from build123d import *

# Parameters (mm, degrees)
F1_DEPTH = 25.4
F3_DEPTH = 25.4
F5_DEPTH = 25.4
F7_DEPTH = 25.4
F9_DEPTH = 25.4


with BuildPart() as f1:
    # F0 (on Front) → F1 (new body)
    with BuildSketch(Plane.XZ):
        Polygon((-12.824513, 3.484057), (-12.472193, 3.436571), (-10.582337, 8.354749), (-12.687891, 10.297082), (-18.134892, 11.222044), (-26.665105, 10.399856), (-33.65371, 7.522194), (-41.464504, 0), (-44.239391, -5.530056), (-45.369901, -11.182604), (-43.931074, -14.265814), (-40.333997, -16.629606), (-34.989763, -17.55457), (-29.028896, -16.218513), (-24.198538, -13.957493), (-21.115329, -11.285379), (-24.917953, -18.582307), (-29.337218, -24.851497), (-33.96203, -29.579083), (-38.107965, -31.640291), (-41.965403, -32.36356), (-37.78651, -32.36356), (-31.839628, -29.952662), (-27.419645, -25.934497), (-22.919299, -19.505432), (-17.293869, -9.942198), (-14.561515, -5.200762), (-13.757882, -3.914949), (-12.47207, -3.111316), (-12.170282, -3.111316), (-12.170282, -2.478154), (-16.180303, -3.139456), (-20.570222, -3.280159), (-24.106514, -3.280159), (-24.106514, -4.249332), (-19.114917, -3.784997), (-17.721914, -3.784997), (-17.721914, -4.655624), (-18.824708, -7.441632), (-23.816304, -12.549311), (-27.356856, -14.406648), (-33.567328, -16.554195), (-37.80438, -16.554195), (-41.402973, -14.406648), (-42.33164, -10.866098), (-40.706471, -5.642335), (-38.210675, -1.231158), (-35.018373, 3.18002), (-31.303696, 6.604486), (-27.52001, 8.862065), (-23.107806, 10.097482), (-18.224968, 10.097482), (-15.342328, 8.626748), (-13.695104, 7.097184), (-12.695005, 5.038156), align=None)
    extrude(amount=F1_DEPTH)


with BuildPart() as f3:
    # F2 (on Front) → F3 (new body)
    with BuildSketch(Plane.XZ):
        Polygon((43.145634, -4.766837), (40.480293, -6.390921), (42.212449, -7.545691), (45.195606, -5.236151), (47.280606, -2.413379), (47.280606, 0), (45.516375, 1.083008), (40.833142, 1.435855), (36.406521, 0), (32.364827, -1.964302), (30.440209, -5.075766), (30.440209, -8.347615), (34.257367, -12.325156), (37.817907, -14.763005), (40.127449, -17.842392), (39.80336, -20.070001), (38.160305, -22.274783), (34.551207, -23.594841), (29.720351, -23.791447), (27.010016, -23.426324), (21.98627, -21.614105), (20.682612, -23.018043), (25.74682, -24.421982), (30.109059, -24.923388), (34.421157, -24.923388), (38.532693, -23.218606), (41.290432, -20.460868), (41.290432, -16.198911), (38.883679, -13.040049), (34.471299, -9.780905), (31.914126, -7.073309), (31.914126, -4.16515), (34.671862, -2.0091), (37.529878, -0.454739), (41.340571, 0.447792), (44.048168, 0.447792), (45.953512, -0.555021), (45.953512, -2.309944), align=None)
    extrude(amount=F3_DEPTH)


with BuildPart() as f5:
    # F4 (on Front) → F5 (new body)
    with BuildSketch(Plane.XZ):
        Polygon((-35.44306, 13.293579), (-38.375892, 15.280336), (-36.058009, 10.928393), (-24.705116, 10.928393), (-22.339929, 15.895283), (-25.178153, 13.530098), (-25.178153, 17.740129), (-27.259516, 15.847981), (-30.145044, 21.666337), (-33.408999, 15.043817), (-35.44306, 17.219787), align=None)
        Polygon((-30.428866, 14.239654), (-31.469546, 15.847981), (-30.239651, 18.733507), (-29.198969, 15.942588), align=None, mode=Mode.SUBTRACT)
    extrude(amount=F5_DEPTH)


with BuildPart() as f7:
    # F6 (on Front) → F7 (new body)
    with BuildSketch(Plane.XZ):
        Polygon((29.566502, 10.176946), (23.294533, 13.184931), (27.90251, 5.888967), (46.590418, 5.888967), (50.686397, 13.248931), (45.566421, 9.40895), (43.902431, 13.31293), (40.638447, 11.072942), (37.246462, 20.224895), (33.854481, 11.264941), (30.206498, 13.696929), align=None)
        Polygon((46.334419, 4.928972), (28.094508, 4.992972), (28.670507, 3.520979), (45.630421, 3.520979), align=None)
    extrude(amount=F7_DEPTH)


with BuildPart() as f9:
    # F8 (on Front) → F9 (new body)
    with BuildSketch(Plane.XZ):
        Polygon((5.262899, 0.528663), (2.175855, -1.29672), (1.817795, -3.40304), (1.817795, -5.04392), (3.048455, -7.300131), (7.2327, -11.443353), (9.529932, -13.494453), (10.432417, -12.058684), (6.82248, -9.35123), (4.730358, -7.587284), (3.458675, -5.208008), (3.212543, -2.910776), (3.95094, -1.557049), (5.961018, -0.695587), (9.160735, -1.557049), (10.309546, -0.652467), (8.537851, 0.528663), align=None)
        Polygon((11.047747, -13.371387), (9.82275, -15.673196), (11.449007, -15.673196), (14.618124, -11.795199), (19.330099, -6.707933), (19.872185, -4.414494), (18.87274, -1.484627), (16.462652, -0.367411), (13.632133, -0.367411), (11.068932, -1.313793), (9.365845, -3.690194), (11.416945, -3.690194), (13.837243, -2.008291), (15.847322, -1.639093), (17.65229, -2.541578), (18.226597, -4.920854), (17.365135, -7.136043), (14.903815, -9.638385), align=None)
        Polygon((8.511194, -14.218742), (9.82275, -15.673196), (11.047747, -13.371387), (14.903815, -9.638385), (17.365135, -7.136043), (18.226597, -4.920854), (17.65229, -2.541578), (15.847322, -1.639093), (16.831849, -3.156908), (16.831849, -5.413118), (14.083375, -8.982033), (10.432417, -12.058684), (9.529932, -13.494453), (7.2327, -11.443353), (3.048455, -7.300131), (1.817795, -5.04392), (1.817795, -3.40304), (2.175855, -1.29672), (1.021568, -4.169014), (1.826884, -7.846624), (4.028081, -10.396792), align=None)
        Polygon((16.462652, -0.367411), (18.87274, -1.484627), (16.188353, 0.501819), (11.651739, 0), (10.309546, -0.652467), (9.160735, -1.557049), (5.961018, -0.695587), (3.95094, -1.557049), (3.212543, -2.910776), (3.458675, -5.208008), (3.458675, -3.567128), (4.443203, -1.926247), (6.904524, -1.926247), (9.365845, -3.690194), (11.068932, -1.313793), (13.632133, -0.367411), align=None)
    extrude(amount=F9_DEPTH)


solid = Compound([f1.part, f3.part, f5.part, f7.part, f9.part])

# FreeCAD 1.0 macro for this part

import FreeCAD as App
import Part
import Sketcher
from FreeCAD import Vector
Q = App.Units.Quantity


def add_polygon(sketch, points):
    """Adds a closed chain of lines whose ends are joined by coincident constraints."""
    first, n = sketch.GeometryCount, len(points)
    for a, b in zip(points, points[1:] + points[:1]):
        sketch.addGeometry(Part.LineSegment(App.Vector(*a, 0), App.Vector(*b, 0)), False)
    for i in range(n):
        sketch.addConstraint(Sketcher.Constraint("Coincident", first + i, 2, first + (i + 1) % n, 1))

doc = App.newDocument("Part")
params = doc.addObject("Spreadsheet::Sheet", "Params")
for row, (alias, value) in enumerate([
    ("pad1_length", "1 in"),
    ("pad2_length", "1 in"),
    ("pad3_length", "1 in"),
    ("pad4_length", "1 in"),
    ("pad5_length", "1 in"),
], start=1):
    params.set(f"A{row}", alias)
    params.set(f"B{row}", "=" + value)
    params.setAlias(f"B{row}", alias)

body = doc.addObject("PartDesign::Body", "Body")

# Sketch on XZ plane
sketch1 = body.newObject("Sketcher::SketchObject", "Sketch")
sketch1.AttachmentSupport = (doc.getObject("XZ_Plane"), [""])
sketch1.MapMode = "FlatFace"
add_polygon(sketch1, [(-12.82, 3.48), (-12.47, 3.44), (-10.58, 8.35), (-12.69, 10.3), (-18.13, 11.22), (-26.67, 10.4), (-33.65, 7.52), (-41.46, 0), (-44.24, -5.53), (-45.37, -11.18), (-43.93, -14.27), (-40.33, -16.63), (-34.99, -17.55), (-29.03, -16.22), (-24.2, -13.96), (-21.12, -11.29), (-24.92, -18.58), (-29.34, -24.85), (-33.96, -29.58), (-38.11, -31.64), (-41.97, -32.36), (-37.79, -32.36), (-31.84, -29.95), (-27.42, -25.93), (-22.92, -19.51), (-17.29, -9.94), (-14.56, -5.2), (-13.76, -3.91), (-12.47, -3.11), (-12.17, -3.11), (-12.17, -2.48), (-16.18, -3.14), (-20.57, -3.28), (-24.11, -3.28), (-24.11, -4.25), (-19.11, -3.78), (-17.72, -3.78), (-17.72, -4.66), (-18.82, -7.44), (-23.82, -12.55), (-27.36, -14.41), (-33.57, -16.55), (-37.8, -16.55), (-41.4, -14.41), (-42.33, -10.87), (-40.71, -5.64), (-38.21, -1.23), (-35.02, 3.18), (-31.3, 6.6), (-27.52, 8.86), (-23.11, 10.1), (-18.22, 10.1), (-15.34, 8.63), (-13.7, 7.1), (-12.7, 5.04)])  # lines 0-54
sketch1.addConstraint([
    Sketcher.Constraint("Horizontal", 20),
    Sketcher.Constraint("Horizontal", 28),
    Sketcher.Constraint("Vertical", 29),
    Sketcher.Constraint("Horizontal", 32),
    Sketcher.Constraint("Vertical", 33),
    Sketcher.Constraint("Horizontal", 35),
    Sketcher.Constraint("Vertical", 36),
    Sketcher.Constraint("Horizontal", 41),
    Sketcher.Constraint("Horizontal", 50),
    Sketcher.Constraint("PointOnObject", 6, 2, -1),
    Sketcher.Constraint("Horizontal", 39, 2, 42, 2),
    Sketcher.Constraint("Equal", 26, 27),
    Sketcher.Constraint("DistanceX", 43, 2, -1, 1, Q("1.6666 in")),
    Sketcher.Constraint("DistanceY", -1, 1, 48, 2, Q("0.3489002 in")),
    Sketcher.Constraint("DistanceX", 9, 2, 12, 2, Q("0.5866999 in")),
    Sketcher.Constraint("Distance", 49, 4.581899),
    Sketcher.Constraint("DistanceX", 28, 1, 28, 2, 0.301788),
    Sketcher.Constraint("DistanceX", 32, 2, 32, 1, 3.536292),
    Sketcher.Constraint("DistanceX", 41, 2, 41, 1, 4.237052),
    Sketcher.Constraint("DistanceX", 8, 2, -1, 1, 45.369901),
    Sketcher.Constraint("DistanceX", 23, 2, -1, 1, 22.919299),
    Sketcher.Constraint("DistanceX", 3, 2, 2, 2, 5.447001),
    Sketcher.Constraint("DistanceX", 3, 2, 0, 2, 5.662699),
    Sketcher.Constraint("DistanceX", 6, 2, 4, 2, 14.799399),
    Sketcher.Constraint("DistanceX", 7, 2, 3, 2, 26.104499),
    Sketcher.Constraint("DistanceY", 7, 2, 3, 2, 16.7521),
    Sketcher.Constraint("DistanceY", 8, 2, 5, 2, 18.704798),
    Sketcher.Constraint("DistanceY", 10, 2, 8, 2, 5.447002),
    Sketcher.Constraint("DistanceX", 10, 2, 12, 2, 11.305101),
    Sketcher.Constraint("DistanceY", 12, 2, 9, 2, 1.952699),
    Sketcher.Constraint("DistanceY", 15, 2, 10, 2, 1.952701),
    Sketcher.Constraint("DistanceX", 18, 2, 11, 2, 3.118202),
    Sketcher.Constraint("DistanceX", 17, 2, 21, 2, 2.122402),
    Sketcher.Constraint("DistanceY", 22, 2, 16, 2, 1.083),
    Sketcher.Constraint("DistanceX", 24, 2, 27, 2, 4.821799),
    Sketcher.Constraint("DistanceX", 26, 2, 28, 2, 1.5876),
    Sketcher.Constraint("DistanceX", 32, 2, 25, 2, 9.544999),
    Sketcher.Constraint("DistanceX", 34, 2, 25, 2, 4.553402),
    Sketcher.Constraint("DistanceX", 35, 2, 25, 2, 3.160399),
    Sketcher.Constraint("DistanceX", 9, 2, 42, 2, 2.528101),
    Sketcher.Constraint("DistanceY", 7, 2, 45, 2, 4.298898),
    Sketcher.Constraint("DistanceX", 44, 2, 46, 2, 5.688098),
    Sketcher.Constraint("DistanceX", 5, 2, 48, 2, 6.1337),
    Sketcher.Constraint("DistanceX", 4, 2, 49, 2, 3.557299),
    Sketcher.Constraint("DistanceY", 49, 2, 2, 2, 0.1996),
    Sketcher.Constraint("DistanceY", 1, 2, 51, 2, 0.271999),
    Sketcher.Constraint("DistanceX", 52, 2, 53, 2, 1.000099),
    Sketcher.Constraint("DistanceY", 54, 2, 53, 2, 1.554099),
    Sketcher.Constraint("Distance", 1, 5.268779),
    Sketcher.Constraint("Distance", 5, 7.557879),
    Sketcher.Constraint("Distance", 6, 10.84398),
    Sketcher.Constraint("Distance", 8, 5.764491),
    Sketcher.Constraint("Distance", 9, 3.402412),
    Sketcher.Constraint("Distance", 10, 4.304239),
    Sketcher.Constraint("Distance", 11, 5.423688),
    Sketcher.Constraint("Distance", 15, 8.228311),
    Sketcher.Constraint("Distance", 18, 4.630049),
    Sketcher.Constraint("Distance", 19, 3.924659),
    Sketcher.Constraint("Distance", 26, 1.516292),
    Sketcher.Constraint("Distance", 37, 2.99633),
    Sketcher.Constraint("Distance", 39, 3.998151),
    Sketcher.Constraint("Distance", 44, 5.470729),
    Sketcher.Constraint("Distance", 45, 5.068282),
    Sketcher.Constraint("Distance", 51, 3.236151),
    Sketcher.Constraint("Distance", 52, 2.247869),
    Sketcher.Constraint("Distance", 53, 2.28906),
    Sketcher.Constraint("DistanceX", 20, 1, 20, 2, 4.178893),
    Sketcher.Constraint("DistanceX", 50, 1, 50, 2, 4.882838),
    Sketcher.Constraint("DistanceY", 29, 1, 29, 2, 0.633162),
    Sketcher.Constraint("DistanceY", 33, 2, 33, 1, 0.969173),
    Sketcher.Constraint("DistanceY", 36, 2, 36, 1, 0.870627),
    Sketcher.Constraint("DistanceY", -1, 1, 0, 2, 3.436571),
    Sketcher.Constraint("DistanceY", -1, 1, 1, 2, 8.354749),
    Sketcher.Constraint("DistanceX", 2, 2, -1, 1, 12.687891),
    Sketcher.Constraint("DistanceX", 5, 2, -1, 1, 33.65371),
    Sketcher.Constraint("DistanceY", 11, 2, -1, 1, 17.55457),
    Sketcher.Constraint("DistanceX", 14, 2, -1, 1, 21.115329),
    Sketcher.Constraint("DistanceY", 14, 2, -1, 1, 11.285379),
    Sketcher.Constraint("DistanceX", 16, 2, -1, 1, 29.337218),
    Sketcher.Constraint("DistanceX", 17, 2, -1, 1, 33.96203),
    Sketcher.Constraint("DistanceY", 18, 2, -1, 1, 31.640291),
    Sketcher.Constraint("DistanceY", 19, 2, -1, 1, 32.36356),
    Sketcher.Constraint("DistanceX", 20, 2, -1, 1, 37.78651),
    Sketcher.Constraint("DistanceY", 21, 2, -1, 1, 29.952662),
    Sketcher.Constraint("DistanceY", 23, 2, -1, 1, 19.505432),
    Sketcher.Constraint("DistanceX", 24, 2, -1, 1, 17.293869),
    Sketcher.Constraint("DistanceY", 26, 2, -1, 1, 3.914949),
    Sketcher.Constraint("DistanceY", 31, 2, -1, 1, 3.280159),
    Sketcher.Constraint("DistanceX", 37, 2, -1, 1, 18.824708),
    Sketcher.Constraint("DistanceY", 38, 2, -1, 1, 12.549311),
    Sketcher.Constraint("DistanceX", 40, 2, -1, 1, 33.567328),
    Sketcher.Constraint("DistanceX", 44, 2, -1, 1, 40.706471),
    Sketcher.Constraint("DistanceY", -1, 1, 46, 2, 3.18002),
    Sketcher.Constraint("DistanceX", 12, 2, 13, 2, 4.830358),
    Sketcher.Constraint("DistanceY", 12, 2, 13, 2, 2.26102),
    Sketcher.Constraint("DistanceY", 16, 2, 15, 2, 6.26919),
    Sketcher.Constraint("DistanceX", 22, 2, 15, 2, 2.501692),
    Sketcher.Constraint("DistanceY", 14, 2, 24, 2, 1.343181),
    Sketcher.Constraint("DistanceX", 25, 2, 0, 2, 2.089322),
    Sketcher.Constraint("DistanceX", 30, 2, 26, 2, 2.422421),
    Sketcher.Constraint("DistanceY", 30, 2, 27, 2, 0.02814),
    Sketcher.Constraint("DistanceY", 34, 2, 31, 2, 0.504838),
    Sketcher.Constraint("DistanceX", 15, 2, 38, 2, 1.101649),
    Sketcher.Constraint("DistanceX", 12, 2, 39, 2, 1.67204),
    Sketcher.Constraint("DistanceY", 40, 2, 12, 2, 0.335682),
    Sketcher.Constraint("DistanceY", 42, 2, 43, 2, 3.54055),
    Sketcher.Constraint("DistanceY", 47, 2, 5, 2, 0.917708),
    Sketcher.Constraint("DistanceX", 47, 2, 4, 2, 4.638591),
    Sketcher.Constraint("DistanceX", 52, 2, 0, 2, 1.222911),
    Sketcher.Constraint("DistanceX", 54, 2, 0, 2, 0.35232),
])
pad1 = body.newObject("PartDesign::Pad", "Pad")
pad1.Profile = sketch1
pad1.setExpression("Length", "Params.pad1_length")
body2 = doc.addObject("PartDesign::Body", "Body001")

# Sketch on XZ plane
sketch2 = body2.newObject("Sketcher::SketchObject", "Sketch001")
sketch2.AttachmentSupport = (doc.getObject("XZ_Plane001"), [""])
sketch2.MapMode = "FlatFace"
add_polygon(sketch2, [(43.1, -4.8), (40.5, -6.4), (42.2, -7.5), (45.2, -5.2), (47.3, -2.4), (47.3, 0), (45.5, 1.1), (40.8, 1.4), (36.4, 0), (32.4, -2), (30.4, -5.1), (30.4, -8.3), (34.3, -12.3), (37.8, -14.8), (40.1, -17.8), (39.8, -20.1), (38.2, -22.3), (34.6, -23.6), (29.7, -23.8), (27, -23.4), (22, -21.6), (20.7, -23), (25.7, -24.4), (30.1, -24.9), (34.4, -24.9), (38.5, -23.2), (41.3, -20.5), (41.3, -16.2), (38.9, -13), (34.5, -9.8), (31.9, -7.1), (31.9, -4.2), (34.7, -2), (37.5, -0.5), (41.3, 0.4), (44, 0.4), (46, -0.6), (46, -2.3)])  # lines 0-37
sketch2.addConstraint([
    Sketcher.Constraint("Vertical", 4),
    Sketcher.Constraint("Vertical", 10),
    Sketcher.Constraint("Horizontal", 23),
    Sketcher.Constraint("Vertical", 26),
    Sketcher.Constraint("Vertical", 30),
    Sketcher.Constraint("Horizontal", 34),
    Sketcher.Constraint("Vertical", 36),
    Sketcher.Constraint("PointOnObject", 4, 2, -1),
    Sketcher.Constraint("PointOnObject", 7, 2, -1),
    Sketcher.Constraint("Perpendicular", 3, 28),
    Sketcher.Constraint("Angle", 25, Q("44.99999 deg")),
    Sketcher.Constraint("Angle", 32, Q("28.540007 deg")),
    Sketcher.Constraint("DistanceX", 23, 1, 23, 2, 4.312098),
    Sketcher.Constraint("DistanceY", 33, 2, 6, 2, Q("0.0389001 in")),
    Sketcher.Constraint("Distance", 9, 3.658601),
    Sketcher.Constraint("DistanceY", 4, 1, 4, 2, 2.413379),
    Sketcher.Constraint("DistanceY", 10, 2, 10, 1, 3.271849),
    Sketcher.Constraint("DistanceY", 30, 1, 30, 2, 2.908159),
    Sketcher.Constraint("DistanceY", 14, 2, -1, 1, 20.070001),
    Sketcher.Constraint("DistanceX", -1, 1, 28, 2, 34.471299),
    Sketcher.Constraint("DistanceY", 31, 2, -1, 1, 2.0091),
    Sketcher.Constraint("DistanceX", 2, 2, 3, 2, 2.085),
    Sketcher.Constraint("DistanceY", 1, 2, 5, 2, 8.628699),
    Sketcher.Constraint("DistanceX", 12, 2, 2, 2, 7.377699),
    Sketcher.Constraint("DistanceX", 13, 2, 1, 2, 2.085),
    Sketcher.Constraint("DistanceY", 13, 2, 1, 2, 10.296701),
    Sketcher.Constraint("DistanceX", 12, 2, 15, 2, 0.342398),
    Sketcher.Constraint("DistanceX", 16, 2, 15, 2, 3.609098),
    Sketcher.Constraint("DistanceY", 16, 2, 20, 2, 0.576798),
    Sketcher.Constraint("DistanceY", 12, 2, 28, 2, 4.9821),
    Sketcher.Constraint("DistanceX", 29, 2, 8, 2, 0.450701),
    Sketcher.Constraint("DistanceY", 31, 2, 8, 2, 0.044798),
    Sketcher.Constraint("Distance", 0, 3.121168),
    Sketcher.Constraint("Distance", 2, 3.772691),
    Sketcher.Constraint("Distance", 3, 3.509311),
    Sketcher.Constraint("Distance", 7, 4.653671),
    Sketcher.Constraint("Distance", 8, 4.493748),
    Sketcher.Constraint("Distance", 11, 5.512851),
    Sketcher.Constraint("Distance", 14, 2.251061),
    Sketcher.Constraint("Distance", 15, 2.749672),
    Sketcher.Constraint("Distance", 18, 2.734818),
    Sketcher.Constraint("Distance", 21, 5.255211),
    Sketcher.Constraint("Distance", 22, 4.390961),
    Sketcher.Constraint("Distance", 25, 3.900031),
    Sketcher.Constraint("Distance", 32, 3.253351),
    Sketcher.Constraint("Distance", 35, 2.15313),
    Sketcher.Constraint("Distance", 37, 3.731019),
    Sketcher.Constraint("DistanceX", 34, 1, 34, 2, 2.707597),
    Sketcher.Constraint("DistanceY", 26, 1, 26, 2, 4.261957),
    Sketcher.Constraint("DistanceY", 36, 2, 36, 1, 1.754923),
    Sketcher.Constraint("DistanceY", 0, 2, -1, 1, 6.390921),
    Sketcher.Constraint("DistanceX", -1, 1, 1, 2, 42.212449),
    Sketcher.Constraint("DistanceY", 1, 2, -1, 1, 7.545691),
    Sketcher.Constraint("DistanceX", -1, 1, 7, 2, 36.406521),
    Sketcher.Constraint("DistanceX", -1, 1, 9, 2, 30.440209),
    Sketcher.Constraint("DistanceY", 16, 2, -1, 1, 23.594841),
    Sketcher.Constraint("DistanceX", -1, 1, 17, 2, 29.720351),
    Sketcher.Constraint("DistanceX", -1, 1, 19, 2, 21.98627),
    Sketcher.Constraint("DistanceX", -1, 1, 20, 2, 20.682612),
    Sketcher.Constraint("DistanceX", -1, 1, 21, 2, 25.74682),
    Sketcher.Constraint("DistanceX", -1, 1, 22, 2, 30.109059),
    Sketcher.Constraint("DistanceY", 25, 2, -1, 1, 20.460868),
    Sketcher.Constraint("DistanceX", -1, 1, 27, 2, 38.883679),
    Sketcher.Constraint("DistanceY", 27, 2, -1, 1, 13.040049),
    Sketcher.Constraint("DistanceY", 29, 2, -1, 1, 7.073309),
    Sketcher.Constraint("DistanceX", -1, 1, 31, 2, 34.671862),
    Sketcher.Constraint("DistanceX", -1, 1, 33, 2, 41.340571),
    Sketcher.Constraint("DistanceY", 35, 2, -1, 1, 0.555021),
    Sketcher.Constraint("DistanceX", 5, 2, 4, 2, 1.764231),
    Sketcher.Constraint("DistanceX", 0, 2, 5, 2, 5.036082),
    Sketcher.Constraint("DistanceX", 0, 2, 6, 2, 0.352849),
    Sketcher.Constraint("DistanceX", 10, 2, 11, 2, 3.817158),
    Sketcher.Constraint("DistanceX", 18, 2, 16, 2, 7.541191),
    Sketcher.Constraint("DistanceY", 18, 2, 15, 2, 1.151541),
    Sketcher.Constraint("DistanceY", 18, 2, 19, 2, 1.812219),
    Sketcher.Constraint("DistanceX", 15, 2, 24, 2, 0.372388),
])
pad2 = body2.newObject("PartDesign::Pad", "Pad001")
pad2.Profile = sketch2
pad2.setExpression("Length", "Params.pad2_length")
body3 = doc.addObject("PartDesign::Body", "Body002")

# Sketch on XZ plane
sketch3 = body3.newObject("Sketcher::SketchObject", "Sketch002")
sketch3.AttachmentSupport = (doc.getObject("XZ_Plane002"), [""])
sketch3.MapMode = "FlatFace"
add_polygon(sketch3, [(-35.4, 13.3), (-38.4, 15.3), (-36.1, 10.9), (-24.7, 10.9), (-22.3, 15.9), (-25.2, 13.5), (-25.2, 17.7), (-27.3, 15.8), (-30.1, 21.7), (-33.4, 15), (-35.4, 17.2)])  # lines 0-10
add_polygon(sketch3, [(-29.2, 15.9), (-30.4, 14.2), (-31.5, 15.8), (-30.2, 18.7)])  # lines 11-14
sketch3.addConstraint([
    Sketcher.Constraint("Horizontal", 2),
    Sketcher.Constraint("Vertical", 5),
    Sketcher.Constraint("Vertical", 10),
    Sketcher.Constraint("Horizontal", 6, 2, 12, 2),
    Sketcher.Constraint("Equal", 9, 14),
    Sketcher.Constraint("DistanceY", 5, 1, 5, 2, 4.210031),
    Sketcher.Constraint("DistanceY", 10, 2, 10, 1, 3.926208),
    Sketcher.Constraint("DistanceY", -1, 1, 4, 2, 13.530098),
    Sketcher.Constraint("DistanceX", 8, 2, -1, 1, 33.408999),
    Sketcher.Constraint("DistanceY", 6, 2, 3, 2, 0.047302),
    Sketcher.Constraint("DistanceX", 6, 2, 2, 2, 2.5544),
    Sketcher.Constraint("DistanceY", 0, 2, 7, 2, 6.386001),
    Sketcher.Constraint("Distance", 1, 4.930719),
    Sketcher.Constraint("Distance", 4, 3.694539),
    Sketcher.Constraint("Distance", 6, 2.81288),
    Sketcher.Constraint("Distance", 8, 7.383168),
    Sketcher.Constraint("Distance", 14, 2.978632),
    Sketcher.Constraint("DistanceX", 2, 1, 2, 2, 11.352893),
    Sketcher.Constraint("DistanceX", 1, 2, -1, 1, 36.058009),
    Sketcher.Constraint("DistanceX", 3, 2, -1, 1, 22.339929),
    Sketcher.Constraint("DistanceX", 9, 2, -1, 1, 35.44306),
    Sketcher.Constraint("DistanceY", -1, 1, 10, 2, 13.293579),
    Sketcher.Constraint("DistanceX", 13, 2, -1, 1, 30.239651),
    Sketcher.Constraint("DistanceX", 14, 2, -1, 1, 29.198969),
    Sketcher.Constraint("DistanceY", -1, 1, 14, 2, 15.942588),
    Sketcher.Constraint("DistanceY", 2, 2, 3, 2, 4.96689),
    Sketcher.Constraint("DistanceX", 0, 2, 4, 2, 13.197739),
    Sketcher.Constraint("DistanceX", 11, 2, 6, 2, 3.16935),
    Sketcher.Constraint("DistanceX", 12, 2, 11, 2, 1.04068),
    Sketcher.Constraint("Distance", 11, 2.100626),
])
pad3 = body3.newObject("PartDesign::Pad", "Pad002")
pad3.Profile = sketch3
pad3.setExpression("Length", "Params.pad3_length")
body4 = doc.addObject("PartDesign::Body", "Body003")
body4.AllowCompound = True

# Sketch on XZ plane
sketch4 = body4.newObject("Sketcher::SketchObject", "Sketch003")
sketch4.AttachmentSupport = (doc.getObject("XZ_Plane003"), [""])
sketch4.MapMode = "FlatFace"
add_polygon(sketch4, [(29.6, 10.2), (23.3, 13.2), (27.9, 5.9), (46.6, 5.9), (50.7, 13.2), (45.6, 9.4), (43.9, 13.3), (40.6, 11.1), (37.2, 20.2), (33.9, 11.3), (30.2, 13.7)])  # lines 0-10
add_polygon(sketch4, [(46.3, 4.9), (28.1, 5), (28.7, 3.5), (45.6, 3.5)])  # lines 11-14
sketch4.addConstraint([
    Sketcher.Constraint("Horizontal", 2),
    Sketcher.Constraint("Horizontal", 13),
    Sketcher.Constraint("DistanceY", 4, 2, 5, 2, Q("0.1537 in")),
    Sketcher.Constraint("DistanceY", 1, 2, 9, 2, Q("0.3074001 in")),
    Sketcher.Constraint("DistanceX", 2, 1, 2, 2, 18.687908),
    Sketcher.Constraint("DistanceX", -1, 1, 9, 2, 30.206498),
    Sketcher.Constraint("DistanceX", -1, 1, 10, 2, 29.566502),
    Sketcher.Constraint("DistanceY", 0, 2, 3, 2, 0.064),
    Sketcher.Constraint("DistanceY", 3, 2, 5, 2, 0.063999),
    Sketcher.Constraint("DistanceY", 6, 2, 8, 2, 0.191999),
    Sketcher.Constraint("DistanceY", 0, 2, 9, 2, 0.511998),
    Sketcher.Constraint("DistanceX", 1, 2, 11, 2, 0.191998),
    Sketcher.Constraint("DistanceX", 11, 2, 12, 2, 0.575999),
    Sketcher.Constraint("DistanceX", 4, 2, 13, 2, 0.064),
    Sketcher.Constraint("DistanceX", 14, 2, 2, 2, 0.255999),
    Sketcher.Constraint("Distance", 3, 8.422952),
    Sketcher.Constraint("Distance", 4, 6.399969),
    Sketcher.Constraint("Distance", 5, 4.24381),
    Sketcher.Constraint("Distance", 6, 3.958679),
    Sketcher.Constraint("Distance", 9, 4.38433),
    Sketcher.Constraint("Distance", 10, 3.577691),
    Sketcher.Constraint("DistanceY", -1, 1, 0, 2, 13.184931),
    Sketcher.Constraint("DistanceX", -1, 1, 1, 2, 27.90251),
    Sketcher.Constraint("DistanceX", -1, 1, 8, 2, 33.854481),
    Sketcher.Constraint("DistanceY", -1, 1, 12, 2, 3.520979),
    Sketcher.Constraint("DistanceX", 7, 2, 5, 2, 6.655969),
    Sketcher.Constraint("DistanceX", 0, 2, 7, 2, 13.951929),
    Sketcher.Constraint("DistanceY", 11, 2, 8, 2, 6.271969),
    Sketcher.Constraint("DistanceY", 14, 2, 4, 2, 4.479978),
    Sketcher.Constraint("Distance", 7, 9.760318),
])
pad4 = body4.newObject("PartDesign::Pad", "Pad003")
pad4.Profile = sketch4
pad4.setExpression("Length", "Params.pad4_length")
body5 = doc.addObject("PartDesign::Body", "Body004")

# Sketch on XZ plane
sketch5 = body5.newObject("Sketcher::SketchObject", "Sketch004")
sketch5.AttachmentSupport = (doc.getObject("XZ_Plane004"), [""])
sketch5.MapMode = "FlatFace"
add_polygon(sketch5, [(5.3, 0.5), (2.2, -1.3), (1, -4.2), (1.8, -7.8), (4, -10.4), (8.5, -14.2), (9.8, -15.7), (11.4, -15.7), (14.6, -11.8), (19.3, -6.7), (19.9, -4.4), (18.9, -1.5), (16.2, 0.5), (11.7, 0), (10.3, -0.7), (8.5, 0.5)])  # lines 0-15
add_polygon(sketch5, [(9.4, -3.7), (11.4, -3.7), (13.8, -2), (15.8, -1.6), (16.8, -3.2), (16.8, -5.4), (14.1, -9), (10.4, -12.1), (6.8, -9.4), (4.7, -7.6), (3.5, -5.2), (3.5, -3.6), (4.4, -1.9), (6.9, -1.9)])  # lines 16-29
sketch5.addConstraint([
    Sketcher.Constraint("Horizontal", 6),
    Sketcher.Constraint("Horizontal", 15),
    Sketcher.Constraint("Horizontal", 16),
    Sketcher.Constraint("Vertical", 20),
    Sketcher.Constraint("Vertical", 26),
    Sketcher.Constraint("Horizontal", 28),
    Sketcher.Constraint("PointOnObject", 12, 2, -1),
    Sketcher.Constraint("DistanceX", 16, 1, 16, 2, 2.0511),
    Sketcher.Constraint("Distance", 25, 2.697801),
    Sketcher.Constraint("DistanceX", 15, 2, 15, 1, 3.274952),
    Sketcher.Constraint("DistanceX", 28, 1, 28, 2, 2.461321),
    Sketcher.Constraint("DistanceY", 20, 2, 20, 1, 2.25621),
    Sketcher.Constraint("DistanceY", 26, 1, 26, 2, 1.64088),
    Sketcher.Constraint("DistanceY", 7, 2, -1, 1, 11.795199),
    Sketcher.Constraint("DistanceX", -1, 1, 8, 2, 19.330099),
    Sketcher.Constraint("DistanceX", -1, 1, 15, 2, 5.262899),
    Sketcher.Constraint("DistanceX", 12, 2, 10, 2, 7.221001),
    Sketcher.Constraint("DistanceX", 14, 2, 11, 2, 7.650502),
    Sketcher.Constraint("DistanceX", 13, 2, 16, 2, 1.107399),
    Sketcher.Constraint("DistanceX", 16, 2, 17, 2, 2.420298),
    Sketcher.Constraint("DistanceY", 16, 2, 18, 2, 2.051101),
    Sketcher.Constraint("DistanceY", 21, 2, 8, 2, 2.2741),
    Sketcher.Constraint("DistanceX", 3, 2, 23, 2, 2.794399),
    Sketcher.Constraint("Distance", 2, 3.764751),
    Sketcher.Constraint("Distance", 7, 5.00821),
    Sketcher.Constraint("Distance", 8, 6.934189),
    Sketcher.Constraint("Distance", 13, 1.492379),
    Sketcher.Constraint("Distance", 17, 2.947311),
    Sketcher.Constraint("Distance", 19, 1.809159),
    Sketcher.Constraint("Distance", 22, 4.77444),
    Sketcher.Constraint("Distance", 24, 2.736509),
    Sketcher.Constraint("Distance", 27, 1.913579),
    Sketcher.Constraint("DistanceX", 6, 1, 6, 2, 1.626257),
    Sketcher.Constraint("DistanceY", 0, 2, -1, 1, 1.29672),
    Sketcher.Constraint("DistanceX", -1, 1, 3, 2, 4.028081),
    Sketcher.Constraint("DistanceX", -1, 1, 5, 2, 9.82275),
    Sketcher.Constraint("DistanceX", -1, 1, 10, 2, 18.87274),
    Sketcher.Constraint("DistanceY", -1, 1, 11, 2, 0.501819),
    Sketcher.Constraint("DistanceY", 17, 2, -1, 1, 2.008291),
    Sketcher.Constraint("DistanceX", -1, 1, 19, 2, 16.831849),
    Sketcher.Constraint("DistanceY", 19, 2, -1, 1, 3.156908),
    Sketcher.Constraint("DistanceY", 23, 2, -1, 1, 9.35123),
    Sketcher.Constraint("DistanceY", 25, 2, -1, 1, 5.208008),
    Sketcher.Constraint("DistanceY", 2, 2, 1, 2, 3.67761),
    Sketcher.Constraint("DistanceX", 2, 2, 0, 2, 0.348971),
    Sketcher.Constraint("DistanceY", 3, 2, 0, 2, 9.100072),
    Sketcher.Constraint("DistanceY", 4, 2, 3, 2, 3.82195),
    Sketcher.Constraint("DistanceX", 2, 2, 4, 2, 6.68431),
    Sketcher.Constraint("DistanceY", 4, 2, 2, 2, 6.372118),
    Sketcher.Constraint("DistanceX", 1, 2, 5, 2, 8.801182),
    Sketcher.Constraint("DistanceX", 4, 2, 7, 2, 6.10693),
    Sketcher.Constraint("DistanceY", 8, 2, 9, 2, 2.293439),
    Sketcher.Constraint("DistanceX", 7, 2, 9, 2, 5.254061),
    Sketcher.Constraint("DistanceY", 6, 2, 10, 2, 14.188569),
    Sketcher.Constraint("DistanceX", 0, 2, 13, 2, 8.133691),
    Sketcher.Constraint("DistanceY", 13, 2, 14, 2, 1.18113),
    Sketcher.Constraint("DistanceX", 21, 2, 7, 2, 0.534749),
    Sketcher.Constraint("DistanceY", 4, 2, 22, 2, 2.160058),
    Sketcher.Constraint("DistanceX", 24, 2, 23, 2, 2.092122),
    Sketcher.Constraint("DistanceY", 26, 2, 27, 2, 1.640881),
])
pad5 = body5.newObject("PartDesign::Pad", "Pad004")
pad5.Profile = sketch5
pad5.setExpression("Length", "Params.pad5_length")

doc.recompute()
